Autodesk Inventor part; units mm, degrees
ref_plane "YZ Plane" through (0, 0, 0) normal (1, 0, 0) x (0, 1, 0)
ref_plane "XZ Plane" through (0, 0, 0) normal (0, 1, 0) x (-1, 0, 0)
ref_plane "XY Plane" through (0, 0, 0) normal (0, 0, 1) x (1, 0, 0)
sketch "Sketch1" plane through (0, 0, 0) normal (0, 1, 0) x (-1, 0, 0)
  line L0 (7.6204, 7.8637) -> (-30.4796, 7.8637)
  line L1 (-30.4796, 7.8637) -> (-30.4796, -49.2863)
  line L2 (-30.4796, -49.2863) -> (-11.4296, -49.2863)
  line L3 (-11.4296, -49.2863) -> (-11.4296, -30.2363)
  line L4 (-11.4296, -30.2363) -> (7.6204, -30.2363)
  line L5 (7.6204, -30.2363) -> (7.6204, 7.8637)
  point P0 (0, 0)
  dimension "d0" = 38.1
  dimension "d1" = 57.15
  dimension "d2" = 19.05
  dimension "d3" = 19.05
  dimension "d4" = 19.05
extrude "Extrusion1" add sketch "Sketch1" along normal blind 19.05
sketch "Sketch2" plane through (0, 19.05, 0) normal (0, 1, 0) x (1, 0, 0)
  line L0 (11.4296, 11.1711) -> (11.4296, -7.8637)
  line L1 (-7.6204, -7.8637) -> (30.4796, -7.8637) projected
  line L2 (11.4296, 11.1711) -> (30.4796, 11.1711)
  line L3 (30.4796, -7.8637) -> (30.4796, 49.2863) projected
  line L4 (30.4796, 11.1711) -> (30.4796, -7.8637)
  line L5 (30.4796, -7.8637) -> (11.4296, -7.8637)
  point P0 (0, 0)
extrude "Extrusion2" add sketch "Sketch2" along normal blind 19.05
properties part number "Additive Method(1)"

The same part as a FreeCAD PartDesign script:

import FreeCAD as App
import Part
import Sketcher
from FreeCAD import Vector
Q = App.Units.Quantity


def add_polygon(sketch, points):
    """Adds a closed chain of lines whose ends are joined by coincident constraints."""
    first, n = sketch.GeometryCount, len(points)
    for a, b in zip(points, points[1:] + points[:1]):
        sketch.addGeometry(Part.LineSegment(App.Vector(*a, 0), App.Vector(*b, 0)), False)
    for i in range(n):
        sketch.addConstraint(Sketcher.Constraint("Coincident", first + i, 2, first + (i + 1) % n, 1))

doc = App.newDocument("Part")
body = doc.addObject("PartDesign::Body", "Body")

# Sketch on XZ plane
sketch1 = body.newObject("Sketcher::SketchObject", "Sketch")
sketch1.AttachmentSupport = (doc.getObject("XZ_Plane"), [""])
sketch1.MapMode = "FlatFace"
add_polygon(sketch1, [(-8, -30), (-8, 8), (30, 8), (30, -49), (11, -49), (11, -30)])  # lines 0-5
sketch1.addConstraint([
    Sketcher.Constraint("Vertical", 0),
    Sketcher.Constraint("Horizontal", 1),
    Sketcher.Constraint("Vertical", 2),
    Sketcher.Constraint("Horizontal", 3),
    Sketcher.Constraint("Vertical", 4),
    Sketcher.Constraint("Horizontal", 5),
    Sketcher.Constraint("Equal", 3, 5),
    Sketcher.Constraint("Equal", 1, 0),
    Sketcher.Constraint("Equal", 5, 4),
    Sketcher.Constraint("DistanceX", 1, 1, 1, 2, Q("1.5 in")),
    Sketcher.Constraint("DistanceY", -1, 1, 0, 2, Q("0.3096 in")),
    Sketcher.Constraint("DistanceX", 0, 2, -1, 1, 7.6204),
])
pad1 = body.newObject("PartDesign::Pad", "Pad")
pad1.Profile = sketch1
pad1.Length = Q("0.75 in")
pad1.Reversed = True

# Sketch on XZ plane
sketch2 = body.newObject("Sketcher::SketchObject", "Sketch001")
sketch2.AttachmentSupport = (doc.getObject("XZ_Plane"), [""])
sketch2.MapMode = "FlatFace"
sketch2.AttachmentOffset = App.Placement(Vector(0, 0, -0.75 * 25.4), App.Rotation())
add_polygon(sketch2, [(30, -11), (11, -11), (11, 8), (30, 8)])  # lines 0-3
sketch2.addConstraint([
    Sketcher.Constraint("Horizontal", 0),
    Sketcher.Constraint("Vertical", 1),
    Sketcher.Constraint("Horizontal", 2),
    Sketcher.Constraint("Vertical", 3),
    Sketcher.Constraint("DistanceX", 0, 2, 0, 1, Q("0.75 in")),
    Sketcher.Constraint("DistanceY", 1, 1, 1, 2, Q("0.7494 in")),
    Sketcher.Constraint("DistanceY", 0, 2, -1, 1, Q("0.4398 in")),
    Sketcher.Constraint("DistanceX", -1, 1, 0, 2, 11.4296),
])
pad2 = body.newObject("PartDesign::Pad", "Pad001")
pad2.Profile = sketch2
pad2.Length = Q("0.75 in")
pad2.Reversed = True

doc.recompute()
